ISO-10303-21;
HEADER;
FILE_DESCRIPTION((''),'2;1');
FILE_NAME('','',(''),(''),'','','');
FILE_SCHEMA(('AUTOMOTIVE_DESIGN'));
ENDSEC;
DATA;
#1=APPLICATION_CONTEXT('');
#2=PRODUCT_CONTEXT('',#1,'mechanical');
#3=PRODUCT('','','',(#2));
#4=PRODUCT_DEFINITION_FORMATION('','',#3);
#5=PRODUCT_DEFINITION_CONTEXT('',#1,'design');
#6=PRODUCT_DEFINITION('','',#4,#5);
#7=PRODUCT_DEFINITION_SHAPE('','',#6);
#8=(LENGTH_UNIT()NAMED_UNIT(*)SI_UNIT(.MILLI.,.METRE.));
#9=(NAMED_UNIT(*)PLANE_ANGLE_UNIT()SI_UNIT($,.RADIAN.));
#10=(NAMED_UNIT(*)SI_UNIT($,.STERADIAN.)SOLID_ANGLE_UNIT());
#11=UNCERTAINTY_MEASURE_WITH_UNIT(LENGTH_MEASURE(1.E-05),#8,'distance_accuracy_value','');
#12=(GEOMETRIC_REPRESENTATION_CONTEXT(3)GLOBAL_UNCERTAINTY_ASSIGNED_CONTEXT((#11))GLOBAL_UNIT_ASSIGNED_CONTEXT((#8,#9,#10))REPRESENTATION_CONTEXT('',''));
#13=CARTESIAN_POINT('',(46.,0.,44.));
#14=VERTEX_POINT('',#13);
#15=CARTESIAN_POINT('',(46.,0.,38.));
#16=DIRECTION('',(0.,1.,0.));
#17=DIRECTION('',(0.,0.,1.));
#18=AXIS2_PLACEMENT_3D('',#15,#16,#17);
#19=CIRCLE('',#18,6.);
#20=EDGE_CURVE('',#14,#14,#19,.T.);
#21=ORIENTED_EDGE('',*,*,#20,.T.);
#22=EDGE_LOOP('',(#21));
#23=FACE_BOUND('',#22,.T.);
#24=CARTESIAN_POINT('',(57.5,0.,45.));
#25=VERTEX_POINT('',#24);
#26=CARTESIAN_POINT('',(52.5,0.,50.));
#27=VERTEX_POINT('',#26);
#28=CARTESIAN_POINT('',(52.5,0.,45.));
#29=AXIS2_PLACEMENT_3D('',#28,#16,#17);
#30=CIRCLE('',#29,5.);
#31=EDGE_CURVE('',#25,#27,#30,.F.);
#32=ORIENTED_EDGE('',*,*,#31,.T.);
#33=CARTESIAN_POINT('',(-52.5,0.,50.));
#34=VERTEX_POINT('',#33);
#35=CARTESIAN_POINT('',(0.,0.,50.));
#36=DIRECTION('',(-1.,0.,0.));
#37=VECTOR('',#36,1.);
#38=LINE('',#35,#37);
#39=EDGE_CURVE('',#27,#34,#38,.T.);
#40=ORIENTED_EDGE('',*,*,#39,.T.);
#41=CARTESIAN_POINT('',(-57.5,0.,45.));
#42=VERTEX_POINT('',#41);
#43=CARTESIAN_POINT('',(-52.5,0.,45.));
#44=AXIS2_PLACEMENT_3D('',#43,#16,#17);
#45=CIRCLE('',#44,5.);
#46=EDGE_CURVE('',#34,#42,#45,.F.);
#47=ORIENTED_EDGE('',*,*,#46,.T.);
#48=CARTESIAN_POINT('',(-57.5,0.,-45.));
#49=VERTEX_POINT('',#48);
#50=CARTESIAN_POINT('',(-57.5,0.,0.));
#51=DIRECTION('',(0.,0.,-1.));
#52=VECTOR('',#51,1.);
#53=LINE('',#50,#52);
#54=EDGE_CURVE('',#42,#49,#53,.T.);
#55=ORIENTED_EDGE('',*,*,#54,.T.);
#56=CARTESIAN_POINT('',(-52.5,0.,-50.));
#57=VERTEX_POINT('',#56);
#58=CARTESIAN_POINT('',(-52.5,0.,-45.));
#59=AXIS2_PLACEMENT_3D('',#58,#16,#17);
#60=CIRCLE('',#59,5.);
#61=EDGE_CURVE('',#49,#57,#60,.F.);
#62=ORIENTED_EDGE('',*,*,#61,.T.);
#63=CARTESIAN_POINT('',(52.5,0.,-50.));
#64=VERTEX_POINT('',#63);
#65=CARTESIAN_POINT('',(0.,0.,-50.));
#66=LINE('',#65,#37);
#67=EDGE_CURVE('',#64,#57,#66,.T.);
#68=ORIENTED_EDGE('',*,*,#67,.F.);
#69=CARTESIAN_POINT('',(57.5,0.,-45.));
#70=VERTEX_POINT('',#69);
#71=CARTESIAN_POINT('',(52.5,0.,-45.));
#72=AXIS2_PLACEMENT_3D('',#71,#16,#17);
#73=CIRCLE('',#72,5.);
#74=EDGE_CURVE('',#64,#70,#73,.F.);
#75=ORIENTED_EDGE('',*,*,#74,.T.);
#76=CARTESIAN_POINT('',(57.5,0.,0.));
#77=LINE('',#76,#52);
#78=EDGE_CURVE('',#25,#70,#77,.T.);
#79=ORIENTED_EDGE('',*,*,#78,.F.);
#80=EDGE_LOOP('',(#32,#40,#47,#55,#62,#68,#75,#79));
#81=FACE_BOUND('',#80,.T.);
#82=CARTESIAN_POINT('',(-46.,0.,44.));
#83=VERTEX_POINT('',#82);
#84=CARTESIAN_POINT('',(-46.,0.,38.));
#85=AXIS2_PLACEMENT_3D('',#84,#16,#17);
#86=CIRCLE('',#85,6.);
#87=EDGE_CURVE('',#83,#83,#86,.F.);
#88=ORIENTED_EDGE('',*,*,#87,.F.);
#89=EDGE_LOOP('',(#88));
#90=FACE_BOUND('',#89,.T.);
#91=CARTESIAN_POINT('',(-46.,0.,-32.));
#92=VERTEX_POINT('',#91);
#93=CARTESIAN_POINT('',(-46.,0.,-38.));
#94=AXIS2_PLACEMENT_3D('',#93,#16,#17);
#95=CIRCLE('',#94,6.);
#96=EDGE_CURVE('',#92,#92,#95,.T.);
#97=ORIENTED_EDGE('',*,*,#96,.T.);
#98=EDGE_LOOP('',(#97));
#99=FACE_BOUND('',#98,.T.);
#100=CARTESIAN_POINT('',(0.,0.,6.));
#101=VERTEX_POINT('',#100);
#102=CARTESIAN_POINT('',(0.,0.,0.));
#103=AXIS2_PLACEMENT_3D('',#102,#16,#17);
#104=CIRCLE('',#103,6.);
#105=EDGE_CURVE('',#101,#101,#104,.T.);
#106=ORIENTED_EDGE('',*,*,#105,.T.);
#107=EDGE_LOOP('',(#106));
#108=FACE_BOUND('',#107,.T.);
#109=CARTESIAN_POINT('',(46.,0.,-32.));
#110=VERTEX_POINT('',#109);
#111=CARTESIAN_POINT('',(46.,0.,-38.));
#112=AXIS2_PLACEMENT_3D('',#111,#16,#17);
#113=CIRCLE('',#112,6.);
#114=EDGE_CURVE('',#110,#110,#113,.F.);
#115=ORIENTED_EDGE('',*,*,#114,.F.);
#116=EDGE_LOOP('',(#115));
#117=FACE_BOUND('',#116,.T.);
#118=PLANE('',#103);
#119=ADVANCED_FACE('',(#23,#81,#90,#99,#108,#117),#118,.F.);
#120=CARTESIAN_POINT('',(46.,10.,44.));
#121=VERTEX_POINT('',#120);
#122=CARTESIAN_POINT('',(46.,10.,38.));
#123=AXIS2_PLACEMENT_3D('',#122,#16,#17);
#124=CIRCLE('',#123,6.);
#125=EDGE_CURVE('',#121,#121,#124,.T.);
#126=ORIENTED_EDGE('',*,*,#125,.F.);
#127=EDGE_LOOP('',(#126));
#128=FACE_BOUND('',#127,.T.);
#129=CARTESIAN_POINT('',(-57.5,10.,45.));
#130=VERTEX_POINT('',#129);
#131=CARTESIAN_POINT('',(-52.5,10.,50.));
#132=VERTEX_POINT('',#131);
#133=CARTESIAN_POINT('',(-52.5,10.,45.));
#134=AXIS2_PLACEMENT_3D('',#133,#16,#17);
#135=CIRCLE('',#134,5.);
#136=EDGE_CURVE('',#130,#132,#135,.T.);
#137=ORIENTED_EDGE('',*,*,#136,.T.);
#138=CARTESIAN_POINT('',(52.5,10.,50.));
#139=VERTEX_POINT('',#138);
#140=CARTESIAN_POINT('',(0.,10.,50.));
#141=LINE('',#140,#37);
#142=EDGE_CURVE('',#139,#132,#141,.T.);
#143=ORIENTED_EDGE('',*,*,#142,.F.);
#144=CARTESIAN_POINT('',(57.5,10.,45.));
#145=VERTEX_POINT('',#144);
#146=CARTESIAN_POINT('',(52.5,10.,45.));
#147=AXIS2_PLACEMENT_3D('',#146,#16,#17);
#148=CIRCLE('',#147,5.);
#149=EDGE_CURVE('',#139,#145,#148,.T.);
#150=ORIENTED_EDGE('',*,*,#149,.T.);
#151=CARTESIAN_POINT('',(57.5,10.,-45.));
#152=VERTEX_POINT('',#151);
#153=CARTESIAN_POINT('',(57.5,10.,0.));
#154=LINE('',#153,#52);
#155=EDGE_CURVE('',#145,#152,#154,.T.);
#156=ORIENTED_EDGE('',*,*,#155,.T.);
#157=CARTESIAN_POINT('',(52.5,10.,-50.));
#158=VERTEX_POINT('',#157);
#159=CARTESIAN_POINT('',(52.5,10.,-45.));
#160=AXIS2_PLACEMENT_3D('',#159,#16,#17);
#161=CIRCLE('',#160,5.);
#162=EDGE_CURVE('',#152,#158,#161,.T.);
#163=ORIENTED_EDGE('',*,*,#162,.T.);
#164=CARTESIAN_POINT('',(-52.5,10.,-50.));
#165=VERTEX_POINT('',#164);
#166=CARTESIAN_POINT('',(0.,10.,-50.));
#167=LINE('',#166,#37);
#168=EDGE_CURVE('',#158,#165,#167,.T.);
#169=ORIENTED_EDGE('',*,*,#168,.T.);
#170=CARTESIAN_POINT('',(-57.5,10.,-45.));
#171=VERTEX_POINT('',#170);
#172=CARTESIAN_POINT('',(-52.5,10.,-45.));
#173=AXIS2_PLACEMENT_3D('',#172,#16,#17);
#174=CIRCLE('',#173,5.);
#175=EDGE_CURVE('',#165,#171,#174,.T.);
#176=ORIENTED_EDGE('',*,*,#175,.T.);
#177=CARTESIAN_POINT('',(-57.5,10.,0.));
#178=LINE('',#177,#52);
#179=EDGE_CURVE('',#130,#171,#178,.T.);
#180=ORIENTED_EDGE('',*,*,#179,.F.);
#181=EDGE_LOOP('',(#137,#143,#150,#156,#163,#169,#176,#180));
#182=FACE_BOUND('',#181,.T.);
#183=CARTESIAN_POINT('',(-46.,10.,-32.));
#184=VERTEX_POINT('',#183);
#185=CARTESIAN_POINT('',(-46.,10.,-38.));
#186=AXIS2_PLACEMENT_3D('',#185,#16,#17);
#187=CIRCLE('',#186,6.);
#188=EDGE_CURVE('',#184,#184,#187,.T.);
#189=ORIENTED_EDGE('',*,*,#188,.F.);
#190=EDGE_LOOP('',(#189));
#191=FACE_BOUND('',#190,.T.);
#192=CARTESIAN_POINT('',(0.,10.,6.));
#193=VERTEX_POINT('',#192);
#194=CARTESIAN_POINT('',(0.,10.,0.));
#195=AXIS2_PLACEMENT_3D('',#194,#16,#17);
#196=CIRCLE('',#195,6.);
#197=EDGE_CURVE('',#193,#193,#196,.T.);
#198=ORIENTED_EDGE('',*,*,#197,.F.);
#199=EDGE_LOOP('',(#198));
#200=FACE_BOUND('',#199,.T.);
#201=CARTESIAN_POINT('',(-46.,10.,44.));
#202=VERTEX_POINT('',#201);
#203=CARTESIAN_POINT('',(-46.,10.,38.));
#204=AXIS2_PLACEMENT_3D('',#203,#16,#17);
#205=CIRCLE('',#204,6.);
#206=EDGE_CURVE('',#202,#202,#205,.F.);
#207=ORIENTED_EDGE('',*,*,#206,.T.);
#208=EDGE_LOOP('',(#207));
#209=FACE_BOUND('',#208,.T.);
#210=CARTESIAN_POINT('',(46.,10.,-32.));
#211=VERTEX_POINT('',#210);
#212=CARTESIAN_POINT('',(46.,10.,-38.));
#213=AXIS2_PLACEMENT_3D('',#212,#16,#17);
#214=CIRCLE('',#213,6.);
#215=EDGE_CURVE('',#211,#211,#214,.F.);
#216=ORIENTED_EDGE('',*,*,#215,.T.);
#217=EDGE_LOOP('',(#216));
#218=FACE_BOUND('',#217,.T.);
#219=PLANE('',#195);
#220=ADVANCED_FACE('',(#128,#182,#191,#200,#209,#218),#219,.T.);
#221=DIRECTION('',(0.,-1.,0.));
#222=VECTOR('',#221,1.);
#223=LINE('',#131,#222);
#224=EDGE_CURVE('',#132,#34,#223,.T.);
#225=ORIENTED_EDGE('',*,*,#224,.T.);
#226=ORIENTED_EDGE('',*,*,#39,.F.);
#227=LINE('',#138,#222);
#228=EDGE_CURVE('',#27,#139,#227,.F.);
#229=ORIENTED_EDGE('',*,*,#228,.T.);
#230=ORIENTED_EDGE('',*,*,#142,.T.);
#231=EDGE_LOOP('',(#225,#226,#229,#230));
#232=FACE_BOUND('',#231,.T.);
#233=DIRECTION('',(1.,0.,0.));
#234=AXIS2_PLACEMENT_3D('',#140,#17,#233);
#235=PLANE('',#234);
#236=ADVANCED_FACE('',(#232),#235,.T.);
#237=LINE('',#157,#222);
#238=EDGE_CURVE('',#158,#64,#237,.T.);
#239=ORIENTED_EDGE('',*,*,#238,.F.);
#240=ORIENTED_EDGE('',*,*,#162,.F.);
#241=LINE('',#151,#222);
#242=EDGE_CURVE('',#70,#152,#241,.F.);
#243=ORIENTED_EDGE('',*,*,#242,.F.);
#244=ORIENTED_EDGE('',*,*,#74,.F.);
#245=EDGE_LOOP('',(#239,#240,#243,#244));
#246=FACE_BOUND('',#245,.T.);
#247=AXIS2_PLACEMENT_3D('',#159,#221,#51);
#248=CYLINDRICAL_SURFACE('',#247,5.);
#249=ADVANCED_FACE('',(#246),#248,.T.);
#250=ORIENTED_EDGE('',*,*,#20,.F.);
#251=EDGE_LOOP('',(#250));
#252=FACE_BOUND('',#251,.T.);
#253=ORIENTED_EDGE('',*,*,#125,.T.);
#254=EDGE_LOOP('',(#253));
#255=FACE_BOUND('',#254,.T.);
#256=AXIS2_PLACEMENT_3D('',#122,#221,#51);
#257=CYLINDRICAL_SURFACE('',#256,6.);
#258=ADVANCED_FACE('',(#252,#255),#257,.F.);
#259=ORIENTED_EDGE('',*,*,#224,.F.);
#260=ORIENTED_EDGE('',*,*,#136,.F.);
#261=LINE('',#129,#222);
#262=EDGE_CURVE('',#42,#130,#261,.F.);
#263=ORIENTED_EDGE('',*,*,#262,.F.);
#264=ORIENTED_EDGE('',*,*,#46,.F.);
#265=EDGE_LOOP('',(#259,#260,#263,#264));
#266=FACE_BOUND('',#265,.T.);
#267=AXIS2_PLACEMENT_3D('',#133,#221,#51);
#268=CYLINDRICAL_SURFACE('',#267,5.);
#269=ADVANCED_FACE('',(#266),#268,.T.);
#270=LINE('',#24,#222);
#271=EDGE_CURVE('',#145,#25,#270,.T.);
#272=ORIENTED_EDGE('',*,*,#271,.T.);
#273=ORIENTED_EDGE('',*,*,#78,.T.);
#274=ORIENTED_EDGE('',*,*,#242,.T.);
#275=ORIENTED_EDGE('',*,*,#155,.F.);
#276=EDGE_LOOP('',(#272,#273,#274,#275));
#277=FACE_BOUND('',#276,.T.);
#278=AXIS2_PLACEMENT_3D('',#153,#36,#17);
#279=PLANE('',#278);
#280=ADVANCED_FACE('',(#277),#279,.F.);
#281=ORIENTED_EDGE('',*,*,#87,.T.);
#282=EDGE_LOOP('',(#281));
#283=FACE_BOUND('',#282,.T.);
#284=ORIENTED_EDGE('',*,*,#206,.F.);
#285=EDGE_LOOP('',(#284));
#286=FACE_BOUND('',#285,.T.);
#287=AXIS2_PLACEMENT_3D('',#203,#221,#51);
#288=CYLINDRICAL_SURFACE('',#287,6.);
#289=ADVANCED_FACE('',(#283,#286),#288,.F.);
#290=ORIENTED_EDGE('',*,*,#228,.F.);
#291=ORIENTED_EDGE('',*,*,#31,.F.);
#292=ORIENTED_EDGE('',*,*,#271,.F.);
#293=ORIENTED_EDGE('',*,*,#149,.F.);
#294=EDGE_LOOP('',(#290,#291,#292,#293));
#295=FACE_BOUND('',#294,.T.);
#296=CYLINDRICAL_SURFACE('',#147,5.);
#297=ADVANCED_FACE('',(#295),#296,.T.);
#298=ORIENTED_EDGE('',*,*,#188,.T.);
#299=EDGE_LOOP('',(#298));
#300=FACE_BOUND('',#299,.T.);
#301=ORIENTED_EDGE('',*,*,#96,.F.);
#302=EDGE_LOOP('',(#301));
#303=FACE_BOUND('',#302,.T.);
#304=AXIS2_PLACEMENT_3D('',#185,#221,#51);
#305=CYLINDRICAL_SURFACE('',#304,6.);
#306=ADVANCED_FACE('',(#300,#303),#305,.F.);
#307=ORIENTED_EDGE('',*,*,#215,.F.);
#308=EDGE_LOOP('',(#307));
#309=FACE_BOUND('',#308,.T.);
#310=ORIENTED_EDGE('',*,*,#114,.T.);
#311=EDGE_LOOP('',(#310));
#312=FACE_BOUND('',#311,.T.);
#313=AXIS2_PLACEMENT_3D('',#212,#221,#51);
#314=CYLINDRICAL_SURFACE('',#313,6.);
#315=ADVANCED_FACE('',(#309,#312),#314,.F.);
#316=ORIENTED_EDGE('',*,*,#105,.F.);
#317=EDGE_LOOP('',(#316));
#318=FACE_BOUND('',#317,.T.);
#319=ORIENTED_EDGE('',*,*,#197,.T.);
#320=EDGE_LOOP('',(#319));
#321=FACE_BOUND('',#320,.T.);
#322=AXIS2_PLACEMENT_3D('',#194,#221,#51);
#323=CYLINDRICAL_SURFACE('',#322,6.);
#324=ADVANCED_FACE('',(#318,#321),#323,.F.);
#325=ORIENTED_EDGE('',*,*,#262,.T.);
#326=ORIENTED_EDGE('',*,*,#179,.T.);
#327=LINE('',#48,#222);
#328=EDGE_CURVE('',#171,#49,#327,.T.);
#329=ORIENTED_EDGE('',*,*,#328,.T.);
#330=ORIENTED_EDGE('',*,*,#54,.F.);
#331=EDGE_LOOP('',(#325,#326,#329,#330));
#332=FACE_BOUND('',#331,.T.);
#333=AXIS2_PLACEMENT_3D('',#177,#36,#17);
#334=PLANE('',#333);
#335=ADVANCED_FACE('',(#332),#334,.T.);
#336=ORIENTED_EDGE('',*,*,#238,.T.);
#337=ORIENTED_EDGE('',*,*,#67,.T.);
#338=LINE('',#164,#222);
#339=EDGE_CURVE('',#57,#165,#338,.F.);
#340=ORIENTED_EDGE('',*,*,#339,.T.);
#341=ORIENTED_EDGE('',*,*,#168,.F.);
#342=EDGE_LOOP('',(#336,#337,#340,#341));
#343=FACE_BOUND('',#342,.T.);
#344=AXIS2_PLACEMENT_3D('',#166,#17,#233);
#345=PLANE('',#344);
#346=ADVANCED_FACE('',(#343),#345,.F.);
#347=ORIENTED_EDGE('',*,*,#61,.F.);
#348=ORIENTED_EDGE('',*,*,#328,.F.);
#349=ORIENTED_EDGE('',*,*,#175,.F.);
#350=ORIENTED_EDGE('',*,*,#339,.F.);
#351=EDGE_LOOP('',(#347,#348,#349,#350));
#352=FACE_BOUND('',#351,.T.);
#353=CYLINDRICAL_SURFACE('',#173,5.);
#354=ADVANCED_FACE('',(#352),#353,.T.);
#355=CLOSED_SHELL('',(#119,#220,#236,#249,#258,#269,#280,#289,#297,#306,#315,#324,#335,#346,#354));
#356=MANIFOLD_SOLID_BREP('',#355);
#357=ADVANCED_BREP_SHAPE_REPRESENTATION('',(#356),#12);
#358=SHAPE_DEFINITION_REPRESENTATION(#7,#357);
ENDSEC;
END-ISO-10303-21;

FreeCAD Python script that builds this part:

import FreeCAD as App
import Part
import Sketcher

V = App.Vector
Q = App.Units.Quantity


def edges_at(feature, points):
    """Names of the edges that pass closest to the given points."""
    edges = feature.Shape.Edges
    near = lambda p: min(range(len(edges)), key=lambda i: edges[i].distToShape(Part.Vertex(*p))[0])
    return sorted({f"Edge{near(p) + 1}" for p in points})

doc = App.newDocument("Part")
params = doc.addObject("Spreadsheet::Sheet", "Params")
for row, (alias, value) in enumerate([
    ("sketch1_diameter", "12 mm"),
    ("sketch1_width", "115 mm"),
    ("sketch1_height", "100 mm"),
    ("pad1_length", "10 mm"),
    ("fillet_radius", "5 mm"),
], start=1):
    params.set(f"A{row}", alias)
    params.set(f"B{row}", "=" + value)
    params.setAlias(f"B{row}", alias)

body = doc.addObject("PartDesign::Body", "Body")

# Sketch on XZ plane
sketch1 = body.newObject("Sketcher::SketchObject", "Sketch")
sketch1.AttachmentSupport = (doc.getObject("XZ_Plane"), [""])
sketch1.MapMode = "FlatFace"
sketch1.addGeometry(Part.LineSegment(V(-58, -50, 0), V(-58, 50, 0)), False)
sketch1.addGeometry(Part.LineSegment(V(-58, 50, 0), V(58, 50, 0)), False)
sketch1.addGeometry(Part.LineSegment(V(58, 50, 0), V(58, -50, 0)), False)
sketch1.addGeometry(Part.LineSegment(V(58, -50, 0), V(-58, -50, 0)), False)
sketch1.addGeometry(Part.Circle(V(-46, 38, 0), V(0, 0, 1), 6), False)
sketch1.addGeometry(Part.Circle(V(46, 38, 0), V(0, 0, 1), 6), False)
sketch1.addGeometry(Part.Circle(V(-46, -38, 0), V(0, 0, 1), 6), False)
sketch1.addGeometry(Part.Circle(V(0, 0, 0), V(0, 0, 1), 6), False)
sketch1.addGeometry(Part.Circle(V(46, -38, 0), V(0, 0, 1), 6), False)
sketch1.addConstraint(Sketcher.Constraint("Coincident", 0, 2, 1, 1))
sketch1.addConstraint(Sketcher.Constraint("Coincident", 1, 2, 2, 1))
sketch1.addConstraint(Sketcher.Constraint("Coincident", 2, 2, 3, 1))
sketch1.addConstraint(Sketcher.Constraint("Coincident", 3, 2, 0, 1))
sketch1.addConstraint(Sketcher.Constraint("Vertical", 0))
sketch1.addConstraint(Sketcher.Constraint("Horizontal", 1))
sketch1.addConstraint(Sketcher.Constraint("Vertical", 2))
sketch1.addConstraint(Sketcher.Constraint("Horizontal", 3))
sketch1.addConstraint(Sketcher.Constraint("Coincident", 7, 3, -1, 1))
sketch1.addConstraint(Sketcher.Constraint("Equal", 4, 5))
sketch1.addConstraint(Sketcher.Constraint("Equal", 5, 6))
sketch1.addConstraint(Sketcher.Constraint("Equal", 6, 7))
sketch1.addConstraint(Sketcher.Constraint("Equal", 7, 8))
sketch1.addConstraint(Sketcher.Constraint("Symmetric", 5, 3, 6, 3, -1, 1))
sketch1.addConstraint(Sketcher.Constraint("Symmetric", 4, 3, 8, 3, -1, 1))
sketch1.addConstraint(Sketcher.Constraint("Symmetric", 0, 2, 2, 2, -1, 1))
sketch1.addConstraint(Sketcher.Constraint("Symmetric", 4, 3, 5, 3, -2))
sketch1.addConstraint(Sketcher.Constraint("Diameter", 4, Q("12 mm")))
sketch1.addConstraint(Sketcher.Constraint("DistanceX", 1, 1, 1, 2, Q("115 mm")))
sketch1.addConstraint(Sketcher.Constraint("DistanceY", 0, 1, 0, 2, Q("100 mm")))
sketch1.addConstraint(Sketcher.Constraint("DistanceX", 4, 3, -1, 1, Q("46 mm")))
sketch1.addConstraint(Sketcher.Constraint("DistanceY", -1, 1, 4, 3, Q("38 mm")))
sketch1.setExpression("Constraints[17]", "Params.sketch1_diameter")
sketch1.setExpression("Constraints[18]", "Params.sketch1_width")
sketch1.setExpression("Constraints[19]", "Params.sketch1_height")
pad1 = body.newObject("PartDesign::Pad", "Pad")
pad1.Profile = sketch1
pad1.setExpression("Length", "Params.pad1_length")
pad1.Reversed = True
doc.recompute()

fillet = body.newObject("PartDesign::Fillet", "Fillet")
fillet.Base = (pad1, edges_at(pad1, [
    (-57.5, 5, -50),
    (57.5, 5, -50),
    (57.5, 5, 50),
    (-57.5, 5, 50),
]))
fillet.setExpression("Radius", "Params.fillet_radius")

doc.recompute()
